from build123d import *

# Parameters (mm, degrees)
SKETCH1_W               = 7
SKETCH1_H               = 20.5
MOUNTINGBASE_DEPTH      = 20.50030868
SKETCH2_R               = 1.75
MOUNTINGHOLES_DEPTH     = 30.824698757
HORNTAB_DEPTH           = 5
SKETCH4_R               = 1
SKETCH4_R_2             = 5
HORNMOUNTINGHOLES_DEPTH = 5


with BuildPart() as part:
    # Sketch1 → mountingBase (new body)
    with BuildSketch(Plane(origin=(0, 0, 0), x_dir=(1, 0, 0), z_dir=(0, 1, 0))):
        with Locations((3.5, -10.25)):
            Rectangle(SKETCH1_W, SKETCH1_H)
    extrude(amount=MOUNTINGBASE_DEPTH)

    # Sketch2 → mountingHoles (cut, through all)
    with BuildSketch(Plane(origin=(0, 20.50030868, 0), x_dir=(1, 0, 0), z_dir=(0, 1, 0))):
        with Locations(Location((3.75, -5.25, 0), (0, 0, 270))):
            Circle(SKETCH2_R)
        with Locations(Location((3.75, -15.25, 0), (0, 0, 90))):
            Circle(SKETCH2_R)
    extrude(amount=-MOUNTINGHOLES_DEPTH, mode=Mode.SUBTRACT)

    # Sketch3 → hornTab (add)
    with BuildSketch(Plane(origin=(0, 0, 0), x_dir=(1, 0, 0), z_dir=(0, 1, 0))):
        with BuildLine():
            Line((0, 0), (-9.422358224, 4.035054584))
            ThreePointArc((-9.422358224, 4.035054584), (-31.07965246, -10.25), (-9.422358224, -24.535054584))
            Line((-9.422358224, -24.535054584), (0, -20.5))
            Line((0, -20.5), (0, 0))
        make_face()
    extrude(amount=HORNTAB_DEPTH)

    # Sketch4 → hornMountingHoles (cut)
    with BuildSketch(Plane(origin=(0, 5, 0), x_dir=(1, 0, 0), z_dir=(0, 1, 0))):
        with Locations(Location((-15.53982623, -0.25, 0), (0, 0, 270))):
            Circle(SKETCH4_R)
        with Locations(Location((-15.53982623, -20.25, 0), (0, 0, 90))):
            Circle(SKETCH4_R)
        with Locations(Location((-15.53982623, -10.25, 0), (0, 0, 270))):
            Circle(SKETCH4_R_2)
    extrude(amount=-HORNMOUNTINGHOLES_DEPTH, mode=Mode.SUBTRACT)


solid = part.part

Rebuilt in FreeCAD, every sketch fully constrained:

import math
import FreeCAD as App
import Part
import Sketcher
from FreeCAD import Vector
Q = App.Units.Quantity


def add_polygon(sketch, points):
    """Adds a closed chain of lines whose ends are joined by coincident constraints."""
    first, n = sketch.GeometryCount, len(points)
    for a, b in zip(points, points[1:] + points[:1]):
        sketch.addGeometry(Part.LineSegment(App.Vector(*a, 0), App.Vector(*b, 0)), False)
    for i in range(n):
        sketch.addConstraint(Sketcher.Constraint("Coincident", first + i, 2, first + (i + 1) % n, 1))

doc = App.newDocument("Part")
body = doc.addObject("PartDesign::Body", "Body")

# Sketch on XZ plane
sketch1 = doc.addObject("Sketcher::SketchObject", "Sketch")
body.addObject(sketch1)
sketch1.AttachmentSupport = (doc.XZ_Plane, [""])
sketch1.MapMode = "FlatFace"
add_polygon(sketch1, [(0, 0), (0, 20), (7, 20), (7, 0)])  # lines 0-3
sketch1.addConstraint([
    Sketcher.Constraint("Vertical", 0),
    Sketcher.Constraint("Horizontal", 1),
    Sketcher.Constraint("Vertical", 2),
    Sketcher.Constraint("Horizontal", 3),
    Sketcher.Constraint("Coincident", 3, 2, -1, 1),
    Sketcher.Constraint("DistanceX", 1, 1, 1, 2, Q("7 mm")),
    Sketcher.Constraint("DistanceY", 0, 1, 0, 2, Q("20.5 mm")),
])
pad1 = doc.addObject("PartDesign::Pad", "Pad")
body.addObject(pad1)
pad1.Profile = sketch1
pad1.Length = 20.500309
pad1.Reversed = True

# Sketch on XZ plane
sketch2 = doc.addObject("Sketcher::SketchObject", "Sketch001")
body.addObject(sketch2)
sketch2.AttachmentSupport = (doc.XZ_Plane, [""])
sketch2.MapMode = "FlatFace"
sketch2.AttachmentOffset = App.Placement(Vector(0, 0, -20.500309), App.Rotation())
sketch2.addGeometry([
    Part.Circle(Vector(3.8, 5.2, 0), Vector(0, 0, 1), 1.8),
    Part.Circle(Vector(3.8, 15.2, 0), Vector(0, 0, 1), 1.8),
], False)
sketch2.addConstraint([
    Sketcher.Constraint("Equal", 0, 1),
    Sketcher.Constraint("Vertical", 0, 3, 1, 3),
    Sketcher.Constraint("Diameter", 0, Q("3.5 mm")),
    Sketcher.Constraint("DistanceY", 0, 3, 1, 3, Q("10 mm")),
    Sketcher.Constraint("DistanceX", -1, 1, 0, 3, Q("3.75 mm")),
    Sketcher.Constraint("DistanceY", -1, 1, 0, 3, Q("5.25 mm")),
])
pocket1 = doc.addObject("PartDesign::Pocket", "Pocket")
body.addObject(pocket1)
pocket1.Profile = sketch2
pocket1.Type = "ThroughAll"
pocket1.Reversed = True

# Sketch on XZ plane
sketch3 = doc.addObject("Sketcher::SketchObject", "Sketch002")
body.addObject(sketch3)
sketch3.AttachmentSupport = (doc.XZ_Plane, [""])
sketch3.MapMode = "FlatFace"
sketch3.addGeometry([
    Part.LineSegment(Vector(0, 0, 0), Vector(-9, -4, 0)),
    Part.ArcOfCircle(Part.Circle(Vector(-16, 10, 0), Vector(0, 0, 1), 16), math.radians(67), math.radians(293)),
    Part.LineSegment(Vector(-9, 25, 0), Vector(0, 20, 0)),
    Part.LineSegment(Vector(0, 20, 0), Vector(0, 0, 0)),
], False)
sketch3.addConstraint([
    Sketcher.Constraint("Tangent", 0, 2, 1, 2),
    Sketcher.Constraint("Tangent", 1, 1, 2, 1),
    Sketcher.Constraint("Coincident", 2, 2, 3, 1),
    Sketcher.Constraint("Coincident", 3, 2, 0, 1),
    Sketcher.Constraint("Vertical", 3),
    Sketcher.Constraint("Coincident", 3, 2, -1, 1),
    Sketcher.Constraint("Vertical", 0, 2, 1, 1),
    Sketcher.Constraint("DistanceY", 3, 2, 3, 1, Q("20.5 mm")),
    Sketcher.Constraint("Distance", 0, Q("10.25 mm")),
    Sketcher.Constraint("Radius", 1, Q("15.539826 mm")),
])
pad2 = doc.addObject("PartDesign::Pad", "Pad001")
body.addObject(pad2)
pad2.Profile = sketch3
pad2.Length = 5
pad2.Reversed = True

# Sketch on XZ plane
sketch4 = doc.addObject("Sketcher::SketchObject", "Sketch003")
body.addObject(sketch4)
sketch4.AttachmentSupport = (doc.XZ_Plane, [""])
sketch4.MapMode = "FlatFace"
sketch4.AttachmentOffset = App.Placement(Vector(0, 0, -5), App.Rotation())
sketch4.addGeometry([
    Part.Circle(Vector(-15.5, 0.2, 0), Vector(0, 0, 1), 1),
    Part.Circle(Vector(-15.5, 20.2, 0), Vector(0, 0, 1), 1),
    Part.Circle(Vector(-15.5, 10.2, 0), Vector(0, 0, 1), 5),
], False)
sketch4.addConstraint([
    Sketcher.Constraint("Equal", 0, 1),
    Sketcher.Constraint("Vertical", 0, 3, 1, 3),
    Sketcher.Constraint("Vertical", 1, 3, 2, 3),
    Sketcher.Constraint("Diameter", 0, Q("2 mm")),
    Sketcher.Constraint("Diameter", 2, Q("10 mm")),
    Sketcher.Constraint("DistanceY", 0, 3, 1, 3, Q("20 mm")),
    Sketcher.Constraint("DistanceY", 0, 3, 2, 3, Q("10 mm")),
    Sketcher.Constraint("DistanceY", -1, 1, 0, 3, Q("0.25 mm")),
    Sketcher.Constraint("DistanceX", 0, 3, -1, 1, Q("15.539826 mm")),
])
pocket2 = doc.addObject("PartDesign::Pocket", "Pocket001")
body.addObject(pocket2)
pocket2.Profile = sketch4
pocket2.Length = 5
pocket2.Reversed = True

doc.recompute()
